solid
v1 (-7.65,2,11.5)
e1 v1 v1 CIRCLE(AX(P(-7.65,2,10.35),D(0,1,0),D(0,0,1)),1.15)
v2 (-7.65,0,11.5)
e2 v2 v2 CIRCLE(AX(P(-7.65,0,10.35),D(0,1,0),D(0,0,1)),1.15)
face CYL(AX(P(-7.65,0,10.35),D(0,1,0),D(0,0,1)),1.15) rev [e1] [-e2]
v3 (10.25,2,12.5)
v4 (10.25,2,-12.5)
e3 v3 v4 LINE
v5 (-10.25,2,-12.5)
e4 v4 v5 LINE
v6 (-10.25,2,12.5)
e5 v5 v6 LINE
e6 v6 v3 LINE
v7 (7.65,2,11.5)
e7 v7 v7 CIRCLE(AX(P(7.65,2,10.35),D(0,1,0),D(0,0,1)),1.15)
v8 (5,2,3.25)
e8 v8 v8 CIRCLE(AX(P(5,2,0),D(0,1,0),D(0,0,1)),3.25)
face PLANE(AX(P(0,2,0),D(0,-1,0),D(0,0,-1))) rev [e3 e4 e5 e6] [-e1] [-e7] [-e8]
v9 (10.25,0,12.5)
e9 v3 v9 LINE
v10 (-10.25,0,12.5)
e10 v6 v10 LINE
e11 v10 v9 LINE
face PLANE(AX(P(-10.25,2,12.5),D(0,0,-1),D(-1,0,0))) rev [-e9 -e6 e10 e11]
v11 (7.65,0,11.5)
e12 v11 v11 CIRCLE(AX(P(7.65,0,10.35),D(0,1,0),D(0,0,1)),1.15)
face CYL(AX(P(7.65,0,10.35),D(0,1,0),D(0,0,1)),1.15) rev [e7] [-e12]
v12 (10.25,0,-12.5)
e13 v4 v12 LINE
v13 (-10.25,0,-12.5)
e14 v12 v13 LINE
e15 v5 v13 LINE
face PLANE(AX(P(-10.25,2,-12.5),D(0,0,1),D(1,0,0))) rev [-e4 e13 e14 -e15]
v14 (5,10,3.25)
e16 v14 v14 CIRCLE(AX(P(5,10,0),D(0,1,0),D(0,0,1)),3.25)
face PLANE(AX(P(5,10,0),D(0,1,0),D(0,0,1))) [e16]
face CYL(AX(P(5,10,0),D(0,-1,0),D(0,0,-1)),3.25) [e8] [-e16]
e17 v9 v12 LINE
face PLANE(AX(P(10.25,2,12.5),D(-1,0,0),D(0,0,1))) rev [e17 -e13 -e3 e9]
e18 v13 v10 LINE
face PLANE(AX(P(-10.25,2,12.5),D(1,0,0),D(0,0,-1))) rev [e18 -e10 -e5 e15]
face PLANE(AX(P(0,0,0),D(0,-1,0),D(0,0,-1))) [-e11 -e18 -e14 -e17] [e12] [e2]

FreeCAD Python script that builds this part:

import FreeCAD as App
import Part
import Sketcher


def add_polygon(sketch, points):
    """Adds a closed chain of lines whose ends are joined by coincident constraints."""
    first, n = sketch.GeometryCount, len(points)
    for a, b in zip(points, points[1:] + points[:1]):
        sketch.addGeometry(Part.LineSegment(App.Vector(*a, 0), App.Vector(*b, 0)), False)
    for i in range(n):
        sketch.addConstraint(Sketcher.Constraint("Coincident", first + i, 2, first + (i + 1) % n, 1))

doc = App.newDocument("Part")
body = doc.addObject("PartDesign::Body", "Body")

# Sketch on XZ plane
sketch1 = doc.addObject("Sketcher::SketchObject", "Sketch")
body.addObject(sketch1)
sketch1.AttachmentSupport = (doc.XZ_Plane, [""])
sketch1.MapMode = "FlatFace"
add_polygon(sketch1, [(-10, -12), (-10, 12), (10, 12), (10, -12)])  # lines 0-3
sketch1.addConstraint([
    Sketcher.Constraint("Vertical", 0),
    Sketcher.Constraint("Horizontal", 1),
    Sketcher.Constraint("Vertical", 2),
    Sketcher.Constraint("Horizontal", 3),
    Sketcher.Constraint("Symmetric", 0, 2, 2, 2, -1, 1),
    Sketcher.Constraint("DistanceY", 0, 1, 0, 2, 25.0),
    Sketcher.Constraint("DistanceX", 1, 1, 1, 2, 20.5),
])
pad1 = doc.addObject("PartDesign::Pad", "Pad")
body.addObject(pad1)
pad1.Profile = sketch1
pad1.Length = 2
pad1.Reversed = True

# Sketch on XZ plane
sketch2 = doc.addObject("Sketcher::SketchObject", "Sketch001")
body.addObject(sketch2)
sketch2.AttachmentSupport = (doc.XZ_Plane, [""])
sketch2.MapMode = "FlatFace"
sketch2.AttachmentOffset = App.Placement(App.Vector(0, 0, -2), App.Rotation())
sketch2.addGeometry([
    Part.Circle(App.Vector(7.7, 10.3, 0), App.Vector(0, 0, 1), 1.1),
    Part.Circle(App.Vector(-7.7, 10.3, 0), App.Vector(0, 0, 1), 1.1),
], False)
sketch2.addConstraint([
    Sketcher.Constraint("Equal", 0, 1),
    Sketcher.Constraint("Symmetric", 0, 3, 1, 3, -2),
    Sketcher.Constraint("Diameter", 0, 2.3),
    Sketcher.Constraint("DistanceX", 1, 3, 0, 3, 15.3),
    Sketcher.Constraint("DistanceY", -1, 1, 0, 3, 10.35),
])
pocket1 = doc.addObject("PartDesign::Pocket", "Pocket")
body.addObject(pocket1)
pocket1.Profile = sketch2
pocket1.Type = "ThroughAll"
pocket1.Reversed = True

# Sketch on XZ plane
sketch3 = doc.addObject("Sketcher::SketchObject", "Sketch002")
body.addObject(sketch3)
sketch3.AttachmentSupport = (doc.XZ_Plane, [""])
sketch3.MapMode = "FlatFace"
sketch3.AttachmentOffset = App.Placement(App.Vector(0, 0, -2), App.Rotation())
sketch3.addGeometry(Part.Circle(App.Vector(5, 0, 0), App.Vector(0, 0, 1), 3.2), False)
sketch3.addConstraint([
    Sketcher.Constraint("PointOnObject", 0, 3, -1),
    Sketcher.Constraint("Diameter", 0, 6.5),
    Sketcher.Constraint("DistanceX", -1, 1, 0, 3, 5.0),
])
pad2 = doc.addObject("PartDesign::Pad", "Pad001")
body.addObject(pad2)
pad2.Profile = sketch3
pad2.Length = 8
pad2.Reversed = True

doc.recompute()
